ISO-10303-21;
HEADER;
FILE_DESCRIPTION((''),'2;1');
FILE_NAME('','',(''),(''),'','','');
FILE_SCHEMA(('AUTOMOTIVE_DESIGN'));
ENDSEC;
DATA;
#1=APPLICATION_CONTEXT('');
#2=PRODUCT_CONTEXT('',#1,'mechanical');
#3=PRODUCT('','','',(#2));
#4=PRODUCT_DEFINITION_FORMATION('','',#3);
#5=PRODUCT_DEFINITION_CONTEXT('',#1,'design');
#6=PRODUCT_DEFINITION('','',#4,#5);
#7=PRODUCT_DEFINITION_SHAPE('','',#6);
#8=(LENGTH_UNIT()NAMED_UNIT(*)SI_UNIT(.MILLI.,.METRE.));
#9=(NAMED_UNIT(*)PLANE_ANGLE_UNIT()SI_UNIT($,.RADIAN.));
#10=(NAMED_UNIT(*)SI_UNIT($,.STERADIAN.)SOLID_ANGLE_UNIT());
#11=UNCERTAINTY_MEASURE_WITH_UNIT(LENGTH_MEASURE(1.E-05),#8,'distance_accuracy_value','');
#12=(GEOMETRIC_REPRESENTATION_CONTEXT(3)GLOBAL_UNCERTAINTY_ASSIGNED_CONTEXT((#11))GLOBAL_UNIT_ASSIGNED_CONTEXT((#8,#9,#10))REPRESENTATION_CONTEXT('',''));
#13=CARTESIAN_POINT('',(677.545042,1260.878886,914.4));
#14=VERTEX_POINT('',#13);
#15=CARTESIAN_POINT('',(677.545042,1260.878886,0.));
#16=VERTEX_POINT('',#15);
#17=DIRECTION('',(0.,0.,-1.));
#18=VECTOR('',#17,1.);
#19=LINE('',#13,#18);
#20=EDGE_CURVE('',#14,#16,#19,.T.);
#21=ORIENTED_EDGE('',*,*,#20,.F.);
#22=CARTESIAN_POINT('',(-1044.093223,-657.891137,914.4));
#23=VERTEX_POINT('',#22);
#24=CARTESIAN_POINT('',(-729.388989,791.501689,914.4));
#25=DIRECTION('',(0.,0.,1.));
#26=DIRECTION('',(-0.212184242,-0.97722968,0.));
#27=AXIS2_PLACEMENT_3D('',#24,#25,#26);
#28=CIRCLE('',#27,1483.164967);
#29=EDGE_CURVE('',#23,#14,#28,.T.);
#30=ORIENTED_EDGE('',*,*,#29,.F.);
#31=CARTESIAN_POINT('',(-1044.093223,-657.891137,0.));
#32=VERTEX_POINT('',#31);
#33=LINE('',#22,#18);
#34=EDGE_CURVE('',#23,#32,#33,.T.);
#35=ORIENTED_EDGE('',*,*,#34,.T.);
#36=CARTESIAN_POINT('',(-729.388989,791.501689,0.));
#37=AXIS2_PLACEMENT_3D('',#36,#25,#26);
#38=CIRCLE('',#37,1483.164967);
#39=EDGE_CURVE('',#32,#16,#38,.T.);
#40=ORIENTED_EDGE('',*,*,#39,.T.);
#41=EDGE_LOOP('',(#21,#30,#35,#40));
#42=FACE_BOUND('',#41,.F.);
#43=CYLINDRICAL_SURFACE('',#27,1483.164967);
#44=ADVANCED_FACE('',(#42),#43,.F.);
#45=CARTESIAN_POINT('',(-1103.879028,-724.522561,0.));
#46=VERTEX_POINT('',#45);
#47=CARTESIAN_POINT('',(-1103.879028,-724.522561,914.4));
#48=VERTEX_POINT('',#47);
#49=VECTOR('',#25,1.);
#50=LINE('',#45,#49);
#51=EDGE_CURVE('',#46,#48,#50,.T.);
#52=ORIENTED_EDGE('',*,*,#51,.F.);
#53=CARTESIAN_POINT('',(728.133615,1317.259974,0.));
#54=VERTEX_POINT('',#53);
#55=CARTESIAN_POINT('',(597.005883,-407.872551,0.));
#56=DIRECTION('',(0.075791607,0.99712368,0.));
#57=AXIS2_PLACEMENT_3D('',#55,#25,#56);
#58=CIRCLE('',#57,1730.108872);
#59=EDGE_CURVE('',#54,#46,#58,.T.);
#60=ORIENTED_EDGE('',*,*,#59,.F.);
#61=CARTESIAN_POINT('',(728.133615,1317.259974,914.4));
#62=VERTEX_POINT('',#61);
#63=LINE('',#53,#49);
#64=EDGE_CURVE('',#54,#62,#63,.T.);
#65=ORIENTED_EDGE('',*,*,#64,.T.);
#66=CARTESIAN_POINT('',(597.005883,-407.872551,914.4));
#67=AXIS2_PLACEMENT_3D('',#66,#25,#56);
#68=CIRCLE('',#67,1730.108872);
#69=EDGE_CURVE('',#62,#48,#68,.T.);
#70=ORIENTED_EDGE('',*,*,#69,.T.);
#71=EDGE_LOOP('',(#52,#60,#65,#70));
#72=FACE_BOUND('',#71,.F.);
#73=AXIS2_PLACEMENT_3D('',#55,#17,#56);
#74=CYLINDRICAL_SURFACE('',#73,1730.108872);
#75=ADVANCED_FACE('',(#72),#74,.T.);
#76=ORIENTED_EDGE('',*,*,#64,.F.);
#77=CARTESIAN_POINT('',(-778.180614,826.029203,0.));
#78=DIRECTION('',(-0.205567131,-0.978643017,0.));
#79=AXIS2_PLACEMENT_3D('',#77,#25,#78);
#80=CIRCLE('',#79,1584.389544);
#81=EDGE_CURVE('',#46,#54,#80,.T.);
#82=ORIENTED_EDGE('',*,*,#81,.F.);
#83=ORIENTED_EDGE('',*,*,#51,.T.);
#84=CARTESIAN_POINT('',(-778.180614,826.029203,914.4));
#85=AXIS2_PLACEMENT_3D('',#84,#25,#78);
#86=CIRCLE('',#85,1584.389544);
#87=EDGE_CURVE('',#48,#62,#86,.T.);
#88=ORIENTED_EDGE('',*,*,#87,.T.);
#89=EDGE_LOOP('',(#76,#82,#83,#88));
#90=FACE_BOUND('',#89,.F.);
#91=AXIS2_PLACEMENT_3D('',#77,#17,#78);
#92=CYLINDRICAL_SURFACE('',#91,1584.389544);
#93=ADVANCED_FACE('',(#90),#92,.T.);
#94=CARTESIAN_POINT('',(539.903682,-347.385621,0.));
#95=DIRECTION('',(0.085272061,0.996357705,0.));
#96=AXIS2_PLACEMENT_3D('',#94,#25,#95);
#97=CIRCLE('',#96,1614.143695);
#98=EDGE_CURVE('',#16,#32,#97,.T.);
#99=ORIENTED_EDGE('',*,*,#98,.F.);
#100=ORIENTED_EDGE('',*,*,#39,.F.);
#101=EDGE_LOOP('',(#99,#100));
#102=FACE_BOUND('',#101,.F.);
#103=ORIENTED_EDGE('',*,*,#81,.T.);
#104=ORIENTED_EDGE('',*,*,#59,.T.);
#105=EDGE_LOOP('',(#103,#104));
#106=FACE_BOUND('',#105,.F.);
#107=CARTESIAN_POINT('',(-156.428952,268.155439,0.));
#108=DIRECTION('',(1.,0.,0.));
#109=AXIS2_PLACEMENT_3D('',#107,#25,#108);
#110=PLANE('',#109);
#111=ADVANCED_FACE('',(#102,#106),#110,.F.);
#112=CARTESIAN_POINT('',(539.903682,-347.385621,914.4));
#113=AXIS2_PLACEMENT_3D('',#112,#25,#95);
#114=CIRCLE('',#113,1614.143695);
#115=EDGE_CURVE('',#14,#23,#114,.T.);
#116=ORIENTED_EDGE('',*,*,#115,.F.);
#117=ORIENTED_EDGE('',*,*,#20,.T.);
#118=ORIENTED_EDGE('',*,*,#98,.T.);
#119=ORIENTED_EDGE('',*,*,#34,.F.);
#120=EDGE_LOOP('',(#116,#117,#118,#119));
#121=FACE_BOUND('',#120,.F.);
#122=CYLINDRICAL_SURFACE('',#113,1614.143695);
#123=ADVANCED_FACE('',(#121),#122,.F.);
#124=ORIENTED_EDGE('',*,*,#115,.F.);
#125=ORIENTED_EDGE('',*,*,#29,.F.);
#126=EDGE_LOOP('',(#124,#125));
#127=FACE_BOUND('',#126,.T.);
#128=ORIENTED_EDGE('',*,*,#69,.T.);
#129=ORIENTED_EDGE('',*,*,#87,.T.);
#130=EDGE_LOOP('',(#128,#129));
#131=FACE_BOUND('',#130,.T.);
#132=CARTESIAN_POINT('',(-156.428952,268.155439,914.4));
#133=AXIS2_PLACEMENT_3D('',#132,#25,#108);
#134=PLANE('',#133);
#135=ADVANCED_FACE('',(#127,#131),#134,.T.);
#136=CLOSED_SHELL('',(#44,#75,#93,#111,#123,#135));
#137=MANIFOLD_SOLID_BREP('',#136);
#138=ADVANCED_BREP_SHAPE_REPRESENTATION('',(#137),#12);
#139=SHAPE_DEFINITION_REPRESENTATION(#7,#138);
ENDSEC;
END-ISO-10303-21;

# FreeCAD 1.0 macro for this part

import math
import FreeCAD as App
import Part
import Sketcher
Q = App.Units.Quantity

doc = App.newDocument("Part")
body = doc.addObject("PartDesign::Body", "Body")

sketch1 = body.newObject("Sketcher::SketchObject", "Sketch")
sketch1.AttachmentSupport = (doc.getObject("XY_Plane"), [""])
sketch1.MapMode = "FlatFace"
sketch1.addGeometry(Part.ArcOfCircle(Part.Circle(App.Vector(-778, 826, 0), App.Vector(0, 0, 1), 1584), math.radians(-102), math.radians(18)), False)
sketch1.addGeometry(Part.ArcOfCircle(Part.Circle(App.Vector(597, -408, 0), App.Vector(0, 0, 1), 1730), math.radians(86), math.radians(191)), False)
sketch1.addConstraint(Sketcher.Constraint("Coincident", 0, 1, 1, 2))
sketch1.addConstraint(Sketcher.Constraint("Coincident", 1, 1, 0, 2))
sketch1.addConstraint(Sketcher.Constraint("Radius", 0, 1584.389544))
sketch1.addConstraint(Sketcher.Constraint("Radius", 1, 1730.108872))
sketch1.addConstraint(Sketcher.Constraint("DistanceY", 1, 3, -1, 1, 407.872551))
sketch1.addConstraint(Sketcher.Constraint("DistanceY", 0, 1, -1, 1, 724.522561))
sketch1.addConstraint(Sketcher.Constraint("DistanceX", 0, 3, -1, 1, 778.180614))
sketch1.addConstraint(Sketcher.Constraint("DistanceY", -1, 1, 0, 3, 826.029203))
pad1 = body.newObject("PartDesign::Pad", "Pad")
pad1.Profile = sketch1
pad1.Length = Q("36 in")

sketch2 = body.newObject("Sketcher::SketchObject", "Sketch001")
sketch2.AttachmentSupport = (doc.getObject("XY_Plane"), [""])
sketch2.MapMode = "FlatFace"
sketch2.AttachmentOffset = App.Placement(App.Vector(0, 0, 36 * 25.4), App.Rotation())
sketch2.addGeometry(Part.ArcOfCircle(Part.Circle(App.Vector(540, -347, 0), App.Vector(0, 0, 1), 1614), math.radians(85), math.radians(191)), False)
sketch2.addGeometry(Part.ArcOfCircle(Part.Circle(App.Vector(-729, 792, 0), App.Vector(0, 0, 1), 1483), math.radians(-102), math.radians(18)), False)
sketch2.addConstraint(Sketcher.Constraint("Coincident", 0, 1, 1, 2))
sketch2.addConstraint(Sketcher.Constraint("Coincident", 1, 1, 0, 2))
sketch2.addConstraint(Sketcher.Constraint("Radius", 0, 1614.143695))
sketch2.addConstraint(Sketcher.Constraint("Radius", 1, 1483.164967))
sketch2.addConstraint(Sketcher.Constraint("DistanceX", -1, 1, 0, 3, 539.903682))
sketch2.addConstraint(Sketcher.Constraint("DistanceY", 0, 3, -1, 1, 347.385621))
sketch2.addConstraint(Sketcher.Constraint("DistanceX", 1, 3, -1, 1, 729.388989))
sketch2.addConstraint(Sketcher.Constraint("DistanceY", -1, 1, 1, 3, 791.501689))
pocket1 = body.newObject("PartDesign::Pocket", "Pocket")
pocket1.Profile = sketch2
pocket1.Type = "ThroughAll"

doc.recompute()
